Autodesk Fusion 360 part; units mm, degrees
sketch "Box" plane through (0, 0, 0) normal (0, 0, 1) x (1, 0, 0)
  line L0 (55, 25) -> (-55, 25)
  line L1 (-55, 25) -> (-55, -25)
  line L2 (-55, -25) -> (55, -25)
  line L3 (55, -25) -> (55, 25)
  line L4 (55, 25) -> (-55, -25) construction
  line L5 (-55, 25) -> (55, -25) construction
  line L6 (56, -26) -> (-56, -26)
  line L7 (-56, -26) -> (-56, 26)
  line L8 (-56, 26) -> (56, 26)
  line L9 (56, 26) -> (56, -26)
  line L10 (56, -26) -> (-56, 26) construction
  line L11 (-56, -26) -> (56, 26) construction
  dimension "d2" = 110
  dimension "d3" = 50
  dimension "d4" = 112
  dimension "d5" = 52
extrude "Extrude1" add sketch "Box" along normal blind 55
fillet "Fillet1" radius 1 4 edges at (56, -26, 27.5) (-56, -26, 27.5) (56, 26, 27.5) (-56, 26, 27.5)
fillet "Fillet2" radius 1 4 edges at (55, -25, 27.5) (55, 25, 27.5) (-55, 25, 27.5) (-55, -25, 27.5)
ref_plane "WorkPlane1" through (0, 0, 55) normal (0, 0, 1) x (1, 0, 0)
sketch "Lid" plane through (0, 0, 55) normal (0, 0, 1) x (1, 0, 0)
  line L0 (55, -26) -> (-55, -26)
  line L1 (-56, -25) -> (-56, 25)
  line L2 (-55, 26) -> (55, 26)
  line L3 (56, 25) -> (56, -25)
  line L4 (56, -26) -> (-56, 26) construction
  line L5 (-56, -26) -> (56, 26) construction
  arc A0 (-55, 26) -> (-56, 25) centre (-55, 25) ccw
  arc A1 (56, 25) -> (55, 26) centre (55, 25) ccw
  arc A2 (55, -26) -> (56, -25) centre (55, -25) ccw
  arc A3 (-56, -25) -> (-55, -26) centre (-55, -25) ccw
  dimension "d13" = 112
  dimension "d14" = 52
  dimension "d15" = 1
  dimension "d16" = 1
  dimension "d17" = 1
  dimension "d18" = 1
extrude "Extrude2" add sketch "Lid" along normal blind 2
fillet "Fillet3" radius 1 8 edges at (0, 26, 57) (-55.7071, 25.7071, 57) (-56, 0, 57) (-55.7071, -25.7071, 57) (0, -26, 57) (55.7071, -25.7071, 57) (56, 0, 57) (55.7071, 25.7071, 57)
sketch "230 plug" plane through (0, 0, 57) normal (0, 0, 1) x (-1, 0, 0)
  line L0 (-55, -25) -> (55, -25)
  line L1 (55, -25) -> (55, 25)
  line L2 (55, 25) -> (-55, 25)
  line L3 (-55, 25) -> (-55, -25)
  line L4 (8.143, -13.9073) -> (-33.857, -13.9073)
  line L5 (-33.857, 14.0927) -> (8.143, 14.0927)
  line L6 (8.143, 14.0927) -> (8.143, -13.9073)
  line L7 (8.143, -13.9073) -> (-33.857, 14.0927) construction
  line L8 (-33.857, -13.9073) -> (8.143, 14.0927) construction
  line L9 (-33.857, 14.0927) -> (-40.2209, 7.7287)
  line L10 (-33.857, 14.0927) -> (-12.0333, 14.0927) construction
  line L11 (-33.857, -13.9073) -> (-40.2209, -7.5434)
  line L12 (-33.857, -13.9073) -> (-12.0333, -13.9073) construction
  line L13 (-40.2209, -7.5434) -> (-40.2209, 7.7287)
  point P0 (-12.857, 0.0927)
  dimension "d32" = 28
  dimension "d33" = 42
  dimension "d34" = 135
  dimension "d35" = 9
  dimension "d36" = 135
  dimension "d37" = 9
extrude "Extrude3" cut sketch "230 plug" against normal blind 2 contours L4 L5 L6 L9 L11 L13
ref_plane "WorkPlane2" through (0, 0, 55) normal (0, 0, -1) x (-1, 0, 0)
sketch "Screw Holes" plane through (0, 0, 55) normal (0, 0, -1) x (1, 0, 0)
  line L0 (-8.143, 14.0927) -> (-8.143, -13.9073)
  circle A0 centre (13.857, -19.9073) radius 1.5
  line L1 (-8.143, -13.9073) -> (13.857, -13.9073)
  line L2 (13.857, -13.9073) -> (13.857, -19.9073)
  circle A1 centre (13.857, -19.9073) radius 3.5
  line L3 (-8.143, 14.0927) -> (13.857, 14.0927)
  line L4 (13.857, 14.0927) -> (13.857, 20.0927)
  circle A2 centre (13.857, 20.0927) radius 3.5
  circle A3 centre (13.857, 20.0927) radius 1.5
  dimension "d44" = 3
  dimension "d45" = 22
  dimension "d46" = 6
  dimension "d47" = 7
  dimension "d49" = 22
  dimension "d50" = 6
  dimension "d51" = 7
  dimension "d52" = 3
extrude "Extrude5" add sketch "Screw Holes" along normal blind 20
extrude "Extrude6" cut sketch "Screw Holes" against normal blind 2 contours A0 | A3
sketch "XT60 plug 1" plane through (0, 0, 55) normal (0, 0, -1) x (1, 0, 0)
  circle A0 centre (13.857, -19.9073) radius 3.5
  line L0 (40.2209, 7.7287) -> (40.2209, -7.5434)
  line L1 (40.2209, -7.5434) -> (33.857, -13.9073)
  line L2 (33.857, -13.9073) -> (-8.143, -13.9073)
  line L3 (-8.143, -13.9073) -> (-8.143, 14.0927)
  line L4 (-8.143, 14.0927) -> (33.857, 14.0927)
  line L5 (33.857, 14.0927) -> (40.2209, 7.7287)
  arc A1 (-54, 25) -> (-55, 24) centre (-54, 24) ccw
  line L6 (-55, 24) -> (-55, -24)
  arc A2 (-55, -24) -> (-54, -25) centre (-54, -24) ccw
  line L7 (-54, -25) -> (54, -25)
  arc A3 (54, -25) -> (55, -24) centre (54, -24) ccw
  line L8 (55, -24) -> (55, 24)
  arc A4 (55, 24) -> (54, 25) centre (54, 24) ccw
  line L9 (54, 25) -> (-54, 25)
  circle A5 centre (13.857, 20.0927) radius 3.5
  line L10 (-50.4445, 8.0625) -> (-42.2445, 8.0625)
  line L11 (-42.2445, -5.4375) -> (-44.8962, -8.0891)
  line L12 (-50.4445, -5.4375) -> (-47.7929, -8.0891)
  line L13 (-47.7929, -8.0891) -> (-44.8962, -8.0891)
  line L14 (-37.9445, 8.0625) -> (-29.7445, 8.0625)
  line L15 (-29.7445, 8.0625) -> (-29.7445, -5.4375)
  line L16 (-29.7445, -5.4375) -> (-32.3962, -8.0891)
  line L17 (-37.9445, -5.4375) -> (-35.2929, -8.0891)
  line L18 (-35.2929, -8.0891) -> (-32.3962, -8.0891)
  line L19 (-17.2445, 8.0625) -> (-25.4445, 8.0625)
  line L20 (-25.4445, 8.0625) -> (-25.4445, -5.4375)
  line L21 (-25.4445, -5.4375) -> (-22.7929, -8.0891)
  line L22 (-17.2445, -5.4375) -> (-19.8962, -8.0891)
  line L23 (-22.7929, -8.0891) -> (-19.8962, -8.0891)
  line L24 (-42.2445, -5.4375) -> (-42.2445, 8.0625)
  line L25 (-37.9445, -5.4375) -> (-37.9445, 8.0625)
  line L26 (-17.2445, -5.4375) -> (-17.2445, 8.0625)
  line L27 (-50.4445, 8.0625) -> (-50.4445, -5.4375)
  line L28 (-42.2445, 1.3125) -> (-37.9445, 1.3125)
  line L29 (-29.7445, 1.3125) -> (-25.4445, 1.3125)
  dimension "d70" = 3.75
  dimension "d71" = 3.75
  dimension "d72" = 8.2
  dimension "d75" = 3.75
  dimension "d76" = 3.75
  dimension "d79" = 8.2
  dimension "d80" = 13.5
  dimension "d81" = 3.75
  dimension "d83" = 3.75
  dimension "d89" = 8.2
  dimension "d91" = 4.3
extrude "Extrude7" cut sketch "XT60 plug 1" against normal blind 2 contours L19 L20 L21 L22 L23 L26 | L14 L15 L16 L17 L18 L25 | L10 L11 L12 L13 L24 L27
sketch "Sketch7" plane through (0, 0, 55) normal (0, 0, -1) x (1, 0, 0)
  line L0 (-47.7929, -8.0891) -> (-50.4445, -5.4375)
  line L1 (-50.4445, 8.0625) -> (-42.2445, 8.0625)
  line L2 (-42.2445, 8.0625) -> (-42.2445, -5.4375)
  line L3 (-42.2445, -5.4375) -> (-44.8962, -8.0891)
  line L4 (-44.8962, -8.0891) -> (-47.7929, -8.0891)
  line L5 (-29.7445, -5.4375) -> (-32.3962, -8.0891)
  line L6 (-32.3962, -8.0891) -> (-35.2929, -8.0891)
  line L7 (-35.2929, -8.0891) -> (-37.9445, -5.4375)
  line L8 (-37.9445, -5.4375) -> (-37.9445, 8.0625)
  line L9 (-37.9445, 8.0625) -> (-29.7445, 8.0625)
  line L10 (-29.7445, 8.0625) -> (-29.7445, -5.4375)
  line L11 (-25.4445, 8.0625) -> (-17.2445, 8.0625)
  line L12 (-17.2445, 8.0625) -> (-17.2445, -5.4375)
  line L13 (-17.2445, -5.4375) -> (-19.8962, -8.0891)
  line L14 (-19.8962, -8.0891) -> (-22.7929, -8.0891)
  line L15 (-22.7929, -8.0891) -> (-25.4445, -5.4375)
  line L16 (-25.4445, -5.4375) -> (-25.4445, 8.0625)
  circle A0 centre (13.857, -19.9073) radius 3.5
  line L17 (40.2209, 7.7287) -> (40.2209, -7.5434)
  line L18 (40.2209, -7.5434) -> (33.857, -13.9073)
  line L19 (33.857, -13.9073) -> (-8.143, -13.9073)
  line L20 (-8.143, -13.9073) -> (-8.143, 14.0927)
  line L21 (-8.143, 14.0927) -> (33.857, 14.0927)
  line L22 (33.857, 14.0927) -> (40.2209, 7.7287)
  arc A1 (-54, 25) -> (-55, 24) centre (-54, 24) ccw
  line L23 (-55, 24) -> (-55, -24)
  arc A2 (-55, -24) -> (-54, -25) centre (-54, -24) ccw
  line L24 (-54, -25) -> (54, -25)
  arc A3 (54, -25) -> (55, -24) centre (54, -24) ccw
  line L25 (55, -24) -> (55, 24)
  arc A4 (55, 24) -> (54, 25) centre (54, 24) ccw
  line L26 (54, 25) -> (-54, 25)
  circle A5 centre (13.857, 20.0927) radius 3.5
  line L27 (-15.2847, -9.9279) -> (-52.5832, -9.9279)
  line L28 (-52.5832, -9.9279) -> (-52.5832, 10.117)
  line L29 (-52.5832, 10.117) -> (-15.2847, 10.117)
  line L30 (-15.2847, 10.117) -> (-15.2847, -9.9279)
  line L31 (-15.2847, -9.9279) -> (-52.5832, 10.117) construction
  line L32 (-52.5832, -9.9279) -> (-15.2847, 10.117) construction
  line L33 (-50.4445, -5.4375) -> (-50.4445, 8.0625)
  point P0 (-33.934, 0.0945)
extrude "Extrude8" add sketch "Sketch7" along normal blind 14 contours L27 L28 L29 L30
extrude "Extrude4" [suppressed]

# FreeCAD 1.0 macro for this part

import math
import FreeCAD as App
import Part
import Sketcher
from FreeCAD import Vector


def edges_at(feature, points):
    """Names of the edges that pass closest to the given points."""
    edges = feature.Shape.Edges
    near = lambda p: min(range(len(edges)), key=lambda i: edges[i].distToShape(Part.Vertex(*p))[0])
    return sorted({f"Edge{near(p) + 1}" for p in points})

doc = App.newDocument("Part")
body = doc.addObject("PartDesign::Body", "Body")

# Sketch on XY plane
sketch1 = doc.addObject("Sketcher::SketchObject", "Sketch")
body.addObject(sketch1)
sketch1.AttachmentSupport = (doc.XY_Plane, [""])
sketch1.MapMode = "FlatFace"
sketch1.addGeometry([
    Part.LineSegment(Vector(-56, -26, 0), Vector(56, -26, 0)),  # 0
    Part.LineSegment(Vector(56, -26, 0), Vector(56, 26, 0)),  # 1
    Part.LineSegment(Vector(56, 26, 0), Vector(-56, 26, 0)),  # 2
    Part.LineSegment(Vector(-56, 26, 0), Vector(-56, -26, 0)),  # 3
    Part.LineSegment(Vector(-55, 25, 0), Vector(55, 25, 0)),  # 4
    Part.LineSegment(Vector(55, 25, 0), Vector(55, -25, 0)),  # 5
    Part.LineSegment(Vector(55, -25, 0), Vector(-55, -25, 0)),  # 6
    Part.LineSegment(Vector(-55, -25, 0), Vector(-55, 25, 0)),  # 7
], False)
sketch1.addConstraint([
    Sketcher.Constraint("Coincident", 0, 2, 1, 1),
    Sketcher.Constraint("Coincident", 1, 2, 2, 1),
    Sketcher.Constraint("Coincident", 2, 2, 3, 1),
    Sketcher.Constraint("Coincident", 3, 2, 0, 1),
    Sketcher.Constraint("Coincident", 4, 2, 5, 1),
    Sketcher.Constraint("Coincident", 5, 2, 6, 1),
    Sketcher.Constraint("Coincident", 6, 2, 7, 1),
    Sketcher.Constraint("Coincident", 7, 2, 4, 1),
    Sketcher.Constraint("Horizontal", 0),
    Sketcher.Constraint("Vertical", 1),
    Sketcher.Constraint("Horizontal", 2),
    Sketcher.Constraint("Vertical", 3),
    Sketcher.Constraint("Horizontal", 4),
    Sketcher.Constraint("Vertical", 5),
    Sketcher.Constraint("Horizontal", 6),
    Sketcher.Constraint("Vertical", 7),
    Sketcher.Constraint("Symmetric", 0, 2, 2, 2, -1, 1),
    Sketcher.Constraint("Symmetric", 4, 2, 6, 2, -1, 1),
    Sketcher.Constraint("DistanceX", 0, 1, 0, 2, 112.0),
    Sketcher.Constraint("DistanceX", 4, 1, 4, 2, 110.0),
    Sketcher.Constraint("DistanceY", 1, 1, 1, 2, 52.0),
    Sketcher.Constraint("DistanceY", 5, 2, 5, 1, 50.0),
])
pad1 = doc.addObject("PartDesign::Pad", "Pad")
body.addObject(pad1)
pad1.Profile = sketch1
pad1.Length = 55
doc.recompute()

fillet = doc.addObject("PartDesign::Fillet", "Fillet")
body.addObject(fillet)
fillet.Base = (pad1, edges_at(pad1, [
    (56, -26, 27.5),
    (-56, -26, 27.5),
    (56, 26, 27.5),
    (-56, 26, 27.5),
]))
fillet.Radius = 1
doc.recompute()

fillet2 = doc.addObject("PartDesign::Fillet", "Fillet001")
body.addObject(fillet2)
fillet2.Base = (fillet, edges_at(fillet, [
    (55, -25, 27.5),
    (55, 25, 27.5),
    (-55, 25, 27.5),
    (-55, -25, 27.5),
]))
fillet2.Radius = 1

# Sketch on XY plane
sketch2 = doc.addObject("Sketcher::SketchObject", "Sketch001")
body.addObject(sketch2)
sketch2.AttachmentSupport = (doc.XY_Plane, [""])
sketch2.MapMode = "FlatFace"
sketch2.AttachmentOffset = App.Placement(Vector(0, 0, 55), App.Rotation())
sketch2.addGeometry([
    Part.LineSegment(Vector(-55, -26, 0), Vector(55, -26, 0)),  # 0
    Part.ArcOfCircle(Part.Circle(Vector(55, -25, 0), Vector(0, 0, 1), 1), math.radians(-90), math.radians(0)),  # 1
    Part.LineSegment(Vector(56, -25, 0), Vector(56, 25, 0)),  # 2
    Part.ArcOfCircle(Part.Circle(Vector(55, 25, 0), Vector(0, 0, 1), 1), math.radians(0), math.radians(90)),  # 3
    Part.LineSegment(Vector(55, 26, 0), Vector(-55, 26, 0)),  # 4
    Part.ArcOfCircle(Part.Circle(Vector(-55, 25, 0), Vector(0, 0, 1), 1), math.radians(90), math.radians(180)),  # 5
    Part.LineSegment(Vector(-56, 25, 0), Vector(-56, -25, 0)),  # 6
    Part.ArcOfCircle(Part.Circle(Vector(-55, -25, 0), Vector(0, 0, 1), 1), math.radians(180), math.radians(270)),  # 7
], False)
sketch2.addConstraint([
    Sketcher.Constraint("Tangent", 0, 2, 1, 1),
    Sketcher.Constraint("Tangent", 1, 2, 2, 1),
    Sketcher.Constraint("Tangent", 2, 2, 3, 1),
    Sketcher.Constraint("Tangent", 3, 2, 4, 1),
    Sketcher.Constraint("Tangent", 4, 2, 5, 1),
    Sketcher.Constraint("Tangent", 5, 2, 6, 1),
    Sketcher.Constraint("Tangent", 6, 2, 7, 1),
    Sketcher.Constraint("Tangent", 7, 2, 0, 1),
    Sketcher.Constraint("Horizontal", 0),
    Sketcher.Constraint("Vertical", 2),
    Sketcher.Constraint("Horizontal", 4),
    Sketcher.Constraint("Vertical", 6),
    Sketcher.Constraint("Equal", 1, 3),
    Sketcher.Constraint("Equal", 3, 5),
    Sketcher.Constraint("Equal", 5, 7),
    Sketcher.Constraint("Symmetric", 1, 3, 5, 3, -1, 1),
    Sketcher.Constraint("Radius", 1, 1.0),
    Sketcher.Constraint("DistanceY", 0, 2, 3, 2, 52.0),
    Sketcher.Constraint("DistanceX", 0, 1, 0, 2, 110.0),
])
pad2 = doc.addObject("PartDesign::Pad", "Pad001")
body.addObject(pad2)
pad2.Profile = sketch2
pad2.Length = 2
doc.recompute()

fillet3 = doc.addObject("PartDesign::Fillet", "Fillet002")
body.addObject(fillet3)
fillet3.Base = (pad2, edges_at(pad2, [
    (0, 26, 57),
    (-55.707, 25.707, 57),
    (-56, 0, 57),
    (-55.707, -25.707, 57),
    (0, -26, 57),
    (55.707, -25.707, 57),
    (56, 0, 57),
    (55.707, 25.707, 57),
]))
fillet3.Radius = 1

# Sketch on XY plane
sketch3 = doc.addObject("Sketcher::SketchObject", "Sketch002")
body.addObject(sketch3)
sketch3.AttachmentSupport = (doc.XY_Plane, [""])
sketch3.MapMode = "FlatFace"
sketch3.AttachmentOffset = App.Placement(Vector(0, 0, 57), App.Rotation())
sketch3.addGeometry([
    Part.LineSegment(Vector(33.857, 13.9073, 0), Vector(-8.143, 13.9073, 0)),  # 0
    Part.LineSegment(Vector(-8.143, 13.9073, 0), Vector(-8.143, -14.0927, 0)),  # 1
    Part.LineSegment(Vector(-8.143, -14.0927, 0), Vector(33.857, -14.0927, 0)),  # 2
    Part.LineSegment(Vector(33.857, -14.0927, 0), Vector(40.2209, -7.7287, 0)),  # 3
    Part.LineSegment(Vector(40.2209, -7.7287, 0), Vector(40.2209, 7.5434, 0)),  # 4
    Part.LineSegment(Vector(40.2209, 7.5434, 0), Vector(33.857, 13.9073, 0)),  # 5
], False)
sketch3.addConstraint([
    Sketcher.Constraint("Coincident", 0, 2, 1, 1),
    Sketcher.Constraint("Coincident", 1, 2, 2, 1),
    Sketcher.Constraint("Coincident", 2, 2, 3, 1),
    Sketcher.Constraint("Coincident", 3, 2, 4, 1),
    Sketcher.Constraint("Coincident", 4, 2, 5, 1),
    Sketcher.Constraint("Coincident", 5, 2, 0, 1),
    Sketcher.Constraint("Horizontal", 0),
    Sketcher.Constraint("Vertical", 1),
    Sketcher.Constraint("Horizontal", 2),
    Sketcher.Constraint("Vertical", 4),
    Sketcher.Constraint("Perpendicular", 3, 5),
    Sketcher.Constraint("Vertical", 2, 2, 5, 2),
    Sketcher.Constraint("Equal", 3, 5),
    Sketcher.Constraint("DistanceX", 0, 2, 0, 1, 42.0),
    Sketcher.Constraint("DistanceY", 1, 2, 1, 1, 28.0),
    Sketcher.Constraint("Distance", 3, 9.0),
    Sketcher.Constraint("DistanceX", 0, 2, -1, 1, 8.143),
    Sketcher.Constraint("DistanceY", -1, 1, 0, 2, 13.9073),
])
pocket1 = doc.addObject("PartDesign::Pocket", "Pocket")
body.addObject(pocket1)
pocket1.Profile = sketch3
pocket1.Length = 2

# Sketch on XY plane
sketch4 = doc.addObject("Sketcher::SketchObject", "Sketch003")
body.addObject(sketch4)
sketch4.AttachmentSupport = (doc.XY_Plane, [""])
sketch4.MapMode = "FlatFace"
sketch4.AttachmentOffset = App.Placement(Vector(0, 0, 55), App.Rotation())
sketch4.addGeometry([
    Part.Circle(Vector(13.857, 19.9073, 0), Vector(0, 0, 1), 3.5),
    Part.Circle(Vector(13.857, 19.9073, 0), Vector(0, 0, 1), 1.5),
    Part.Circle(Vector(13.857, -20.0927, 0), Vector(0, 0, 1), 3.5),
    Part.Circle(Vector(13.857, -20.0927, 0), Vector(0, 0, 1), 1.5),
], False)
sketch4.addConstraint([
    Sketcher.Constraint("Coincident", 1, 3, 0, 3),
    Sketcher.Constraint("Coincident", 3, 3, 2, 3),
    Sketcher.Constraint("Equal", 0, 2),
    Sketcher.Constraint("Equal", 1, 3),
    Sketcher.Constraint("Vertical", 1, 3, 2, 3),
    Sketcher.Constraint("Diameter", 0, 7.0),
    Sketcher.Constraint("Diameter", 1, 3.0),
    Sketcher.Constraint("DistanceY", 2, 3, 0, 3, 40.0),
    Sketcher.Constraint("DistanceX", -1, 1, 0, 3, 13.857),
    Sketcher.Constraint("DistanceY", -1, 1, 0, 3, 19.9073),
])
pad3 = doc.addObject("PartDesign::Pad", "Pad002")
body.addObject(pad3)
pad3.Profile = sketch4
pad3.Length = 20
pad3.Reversed = True

# Sketch on XY plane
sketch5 = doc.addObject("Sketcher::SketchObject", "Sketch004")
body.addObject(sketch5)
sketch5.AttachmentSupport = (doc.XY_Plane, [""])
sketch5.MapMode = "FlatFace"
sketch5.AttachmentOffset = App.Placement(Vector(0, 0, 55), App.Rotation())
sketch5.addGeometry([
    Part.Circle(Vector(13.857, 19.9073, 0), Vector(0, 0, 1), 1.5),
    Part.Circle(Vector(13.857, -20.0927, 0), Vector(0, 0, 1), 1.5),
], False)
sketch5.addConstraint([
    Sketcher.Constraint("Equal", 0, 1),
    Sketcher.Constraint("Vertical", 0, 3, 1, 3),
    Sketcher.Constraint("Diameter", 0, 3.0),
    Sketcher.Constraint("DistanceY", 1, 3, 0, 3, 40.0),
    Sketcher.Constraint("DistanceX", -1, 1, 0, 3, 13.857),
    Sketcher.Constraint("DistanceY", -1, 1, 0, 3, 19.9073),
])
pocket2 = doc.addObject("PartDesign::Pocket", "Pocket001")
body.addObject(pocket2)
pocket2.Profile = sketch5
pocket2.Length = 2
pocket2.Reversed = True

# Sketch on XY plane
sketch6 = doc.addObject("Sketcher::SketchObject", "Sketch005")
body.addObject(sketch6)
sketch6.AttachmentSupport = (doc.XY_Plane, [""])
sketch6.MapMode = "FlatFace"
sketch6.AttachmentOffset = App.Placement(Vector(0, 0, 55), App.Rotation())
sketch6.addGeometry([
    Part.LineSegment(Vector(-25.4445, -8.0625, 0), Vector(-25.4445, 5.4375, 0)),  # 0
    Part.LineSegment(Vector(-25.4445, 5.4375, 0), Vector(-22.7929, 8.0891, 0)),  # 1
    Part.LineSegment(Vector(-22.7929, 8.0891, 0), Vector(-19.8962, 8.0891, 0)),  # 2
    Part.LineSegment(Vector(-19.8962, 8.0891, 0), Vector(-17.2445, 5.4375, 0)),  # 3
    Part.LineSegment(Vector(-17.2445, 5.4375, 0), Vector(-17.2445, -8.0625, 0)),  # 4
    Part.LineSegment(Vector(-17.2445, -8.0625, 0), Vector(-25.4445, -8.0625, 0)),  # 5
    Part.LineSegment(Vector(-37.9445, -8.0625, 0), Vector(-37.9445, 5.4375, 0)),  # 6
    Part.LineSegment(Vector(-37.9445, 5.4375, 0), Vector(-35.2929, 8.0891, 0)),  # 7
    Part.LineSegment(Vector(-35.2929, 8.0891, 0), Vector(-32.3962, 8.0891, 0)),  # 8
    Part.LineSegment(Vector(-32.3962, 8.0891, 0), Vector(-29.7445, 5.4375, 0)),  # 9
    Part.LineSegment(Vector(-29.7445, 5.4375, 0), Vector(-29.7445, -8.0625, 0)),  # 10
    Part.LineSegment(Vector(-29.7445, -8.0625, 0), Vector(-37.9445, -8.0625, 0)),  # 11
    Part.LineSegment(Vector(-42.2445, -8.0625, 0), Vector(-50.4445, -8.0625, 0)),  # 12
    Part.LineSegment(Vector(-50.4445, -8.0625, 0), Vector(-50.4445, 5.4375, 0)),  # 13
    Part.LineSegment(Vector(-50.4445, 5.4375, 0), Vector(-47.7929, 8.0891, 0)),  # 14
    Part.LineSegment(Vector(-47.7929, 8.0891, 0), Vector(-44.8962, 8.0891, 0)),  # 15
    Part.LineSegment(Vector(-44.8962, 8.0891, 0), Vector(-42.2445, 5.4375, 0)),  # 16
    Part.LineSegment(Vector(-42.2445, 5.4375, 0), Vector(-42.2445, -8.0625, 0)),  # 17
], False)
sketch6.addConstraint([
    Sketcher.Constraint("Coincident", 0, 2, 1, 1),
    Sketcher.Constraint("Coincident", 1, 2, 2, 1),
    Sketcher.Constraint("Coincident", 2, 2, 3, 1),
    Sketcher.Constraint("Coincident", 3, 2, 4, 1),
    Sketcher.Constraint("Coincident", 4, 2, 5, 1),
    Sketcher.Constraint("Coincident", 5, 2, 0, 1),
    Sketcher.Constraint("Coincident", 6, 2, 7, 1),
    Sketcher.Constraint("Coincident", 7, 2, 8, 1),
    Sketcher.Constraint("Coincident", 8, 2, 9, 1),
    Sketcher.Constraint("Coincident", 9, 2, 10, 1),
    Sketcher.Constraint("Coincident", 10, 2, 11, 1),
    Sketcher.Constraint("Coincident", 11, 2, 6, 1),
    Sketcher.Constraint("Coincident", 12, 2, 13, 1),
    Sketcher.Constraint("Coincident", 13, 2, 14, 1),
    Sketcher.Constraint("Coincident", 14, 2, 15, 1),
    Sketcher.Constraint("Coincident", 15, 2, 16, 1),
    Sketcher.Constraint("Coincident", 16, 2, 17, 1),
    Sketcher.Constraint("Coincident", 17, 2, 12, 1),
    Sketcher.Constraint("Vertical", 0),
    Sketcher.Constraint("Horizontal", 2),
    Sketcher.Constraint("Vertical", 4),
    Sketcher.Constraint("Horizontal", 5),
    Sketcher.Constraint("Vertical", 6),
    Sketcher.Constraint("Horizontal", 8),
    Sketcher.Constraint("Vertical", 10),
    Sketcher.Constraint("Horizontal", 11),
    Sketcher.Constraint("Horizontal", 12),
    Sketcher.Constraint("Vertical", 13),
    Sketcher.Constraint("Horizontal", 15),
    Sketcher.Constraint("Vertical", 17),
    Sketcher.Constraint("Perpendicular", 1, 3),
    Sketcher.Constraint("Perpendicular", 3, 7),
    Sketcher.Constraint("Perpendicular", 7, 9),
    Sketcher.Constraint("Perpendicular", 9, 14),
    Sketcher.Constraint("Perpendicular", 14, 16),
    Sketcher.Constraint("Horizontal", 0, 2, 3, 2),
    Sketcher.Constraint("Horizontal", 3, 2, 6, 2),
    Sketcher.Constraint("Horizontal", 2, 2, 7, 2),
    Sketcher.Constraint("Horizontal", 6, 2, 9, 2),
    Sketcher.Constraint("Horizontal", 5, 2, 10, 2),
    Sketcher.Constraint("Horizontal", 11, 2, 12, 2),
    Sketcher.Constraint("Horizontal", 9, 2, 13, 2),
    Sketcher.Constraint("Horizontal", 8, 2, 14, 2),
    Sketcher.Constraint("Horizontal", 13, 2, 16, 2),
    Sketcher.Constraint("Equal", 2, 8),
    Sketcher.Constraint("Equal", 11, 12),
    Sketcher.Constraint("Equal", 1, 3),
    Sketcher.Constraint("DistanceX", 5, 2, 5, 1, 8.2),
    Sketcher.Constraint("DistanceY", 0, 1, 0, 2, 13.5),
    Sketcher.Constraint("DistanceX", 9, 2, 0, 2, 4.3),
    Sketcher.Constraint("DistanceX", 16, 2, 6, 2, 4.3),
    Sketcher.Constraint("Distance", 1, 3.75),
    Sketcher.Constraint("DistanceX", 1, 2, -1, 1, 22.793),
    Sketcher.Constraint("DistanceY", -1, 1, 1, 2, 8.089),
])
pocket3 = doc.addObject("PartDesign::Pocket", "Pocket002")
body.addObject(pocket3)
pocket3.Profile = sketch6
pocket3.Length = 2
pocket3.Reversed = True

# Sketch on XY plane
sketch7 = doc.addObject("Sketcher::SketchObject", "Sketch006")
body.addObject(sketch7)
sketch7.AttachmentSupport = (doc.XY_Plane, [""])
sketch7.MapMode = "FlatFace"
sketch7.AttachmentOffset = App.Placement(Vector(0, 0, 55), App.Rotation())
sketch7.addGeometry([
    Part.LineSegment(Vector(-52.5832, 9.9279, 0), Vector(-15.2847, 9.9279, 0)),  # 0
    Part.LineSegment(Vector(-15.2847, 9.9279, 0), Vector(-15.2847, -10.117, 0)),  # 1
    Part.LineSegment(Vector(-15.2847, -10.117, 0), Vector(-52.5832, -10.117, 0)),  # 2
    Part.LineSegment(Vector(-52.5832, -10.117, 0), Vector(-52.5832, 9.9279, 0)),  # 3
    Part.LineSegment(Vector(-44.8962, 8.0891, 0), Vector(-47.7929, 8.0891, 0)),  # 4
    Part.LineSegment(Vector(-47.7929, 8.0891, 0), Vector(-50.4445, 5.4375, 0)),  # 5
    Part.LineSegment(Vector(-50.4445, 5.4375, 0), Vector(-50.4445, -8.0625, 0)),  # 6
    Part.LineSegment(Vector(-50.4445, -8.0625, 0), Vector(-42.2445, -8.0625, 0)),  # 7
    Part.LineSegment(Vector(-42.2445, -8.0625, 0), Vector(-42.2445, 5.4375, 0)),  # 8
    Part.LineSegment(Vector(-42.2445, 5.4375, 0), Vector(-44.8962, 8.0891, 0)),  # 9
    Part.LineSegment(Vector(-29.7445, -8.0625, 0), Vector(-29.7445, 5.4375, 0)),  # 10
    Part.LineSegment(Vector(-29.7445, 5.4375, 0), Vector(-32.3962, 8.0891, 0)),  # 11
    Part.LineSegment(Vector(-32.3962, 8.0891, 0), Vector(-35.2929, 8.0891, 0)),  # 12
    Part.LineSegment(Vector(-35.2929, 8.0891, 0), Vector(-37.9445, 5.4375, 0)),  # 13
    Part.LineSegment(Vector(-37.9445, 5.4375, 0), Vector(-37.9445, -8.0625, 0)),  # 14
    Part.LineSegment(Vector(-37.9445, -8.0625, 0), Vector(-29.7445, -8.0625, 0)),  # 15
    Part.LineSegment(Vector(-25.4445, 5.4375, 0), Vector(-25.4445, -8.0625, 0)),  # 16
    Part.LineSegment(Vector(-25.4445, -8.0625, 0), Vector(-17.2445, -8.0625, 0)),  # 17
    Part.LineSegment(Vector(-17.2445, -8.0625, 0), Vector(-17.2445, 5.4375, 0)),  # 18
    Part.LineSegment(Vector(-17.2445, 5.4375, 0), Vector(-19.8962, 8.0891, 0)),  # 19
    Part.LineSegment(Vector(-19.8962, 8.0891, 0), Vector(-22.7929, 8.0891, 0)),  # 20
    Part.LineSegment(Vector(-22.7929, 8.0891, 0), Vector(-25.4445, 5.4375, 0)),  # 21
], False)
sketch7.addConstraint([
    Sketcher.Constraint("Coincident", 0, 2, 1, 1),
    Sketcher.Constraint("Coincident", 1, 2, 2, 1),
    Sketcher.Constraint("Coincident", 2, 2, 3, 1),
    Sketcher.Constraint("Coincident", 3, 2, 0, 1),
    Sketcher.Constraint("Coincident", 4, 2, 5, 1),
    Sketcher.Constraint("Coincident", 5, 2, 6, 1),
    Sketcher.Constraint("Coincident", 6, 2, 7, 1),
    Sketcher.Constraint("Coincident", 7, 2, 8, 1),
    Sketcher.Constraint("Coincident", 8, 2, 9, 1),
    Sketcher.Constraint("Coincident", 9, 2, 4, 1),
    Sketcher.Constraint("Coincident", 10, 2, 11, 1),
    Sketcher.Constraint("Coincident", 11, 2, 12, 1),
    Sketcher.Constraint("Coincident", 12, 2, 13, 1),
    Sketcher.Constraint("Coincident", 13, 2, 14, 1),
    Sketcher.Constraint("Coincident", 14, 2, 15, 1),
    Sketcher.Constraint("Coincident", 15, 2, 10, 1),
    Sketcher.Constraint("Coincident", 16, 2, 17, 1),
    Sketcher.Constraint("Coincident", 17, 2, 18, 1),
    Sketcher.Constraint("Coincident", 18, 2, 19, 1),
    Sketcher.Constraint("Coincident", 19, 2, 20, 1),
    Sketcher.Constraint("Coincident", 20, 2, 21, 1),
    Sketcher.Constraint("Coincident", 21, 2, 16, 1),
    Sketcher.Constraint("Horizontal", 0),
    Sketcher.Constraint("Vertical", 1),
    Sketcher.Constraint("Horizontal", 2),
    Sketcher.Constraint("Vertical", 3),
    Sketcher.Constraint("Horizontal", 4),
    Sketcher.Constraint("Vertical", 6),
    Sketcher.Constraint("Horizontal", 7),
    Sketcher.Constraint("Vertical", 8),
    Sketcher.Constraint("Vertical", 10),
    Sketcher.Constraint("Horizontal", 12),
    Sketcher.Constraint("Vertical", 14),
    Sketcher.Constraint("Horizontal", 15),
    Sketcher.Constraint("Vertical", 16),
    Sketcher.Constraint("Horizontal", 17),
    Sketcher.Constraint("Vertical", 18),
    Sketcher.Constraint("Horizontal", 20),
    Sketcher.Constraint("Perpendicular", 5, 9),
    Sketcher.Constraint("Parallel", 9, 11),
    Sketcher.Constraint("Perpendicular", 11, 13),
    Sketcher.Constraint("Perpendicular", 13, 19),
    Sketcher.Constraint("Perpendicular", 19, 21),
    Sketcher.Constraint("Horizontal", 5, 2, 8, 2),
    Sketcher.Constraint("Horizontal", 8, 2, 10, 2),
    Sketcher.Constraint("Horizontal", 9, 2, 11, 2),
    Sketcher.Constraint("Horizontal", 10, 2, 13, 2),
    Sketcher.Constraint("Horizontal", 7, 2, 14, 2),
    Sketcher.Constraint("Horizontal", 15, 2, 16, 2),
    Sketcher.Constraint("Horizontal", 13, 2, 18, 2),
    Sketcher.Constraint("Horizontal", 12, 2, 19, 2),
    Sketcher.Constraint("Horizontal", 18, 2, 21, 2),
    Sketcher.Constraint("Equal", 4, 12),
    Sketcher.Constraint("Equal", 15, 17),
    Sketcher.Constraint("Equal", 5, 9),
    Sketcher.Constraint("DistanceX", 7, 1, 7, 2, 8.2),
    Sketcher.Constraint("DistanceY", 6, 2, 6, 1, 13.5),
    Sketcher.Constraint("DistanceX", 8, 2, 10, 2, 12.5),
    Sketcher.Constraint("DistanceX", 15, 2, 16, 2, 4.3),
    Sketcher.Constraint("Distance", 5, 3.75),
    Sketcher.Constraint("DistanceY", 1, 2, 1, 1, 20.045),
    Sketcher.Constraint("DistanceX", 0, 1, 0, 2, 37.2985),
    Sketcher.Constraint("DistanceY", -1, 1, 0, 2, 9.928),
    Sketcher.Constraint("DistanceX", 4, 2, -1, 1, 47.793),
    Sketcher.Constraint("DistanceY", -1, 1, 4, 2, 8.089),
    Sketcher.Constraint("DistanceX", 3, 2, 9, 2, 7.687),
])
pad4 = doc.addObject("PartDesign::Pad", "Pad003")
body.addObject(pad4)
pad4.Profile = sketch7
pad4.Length = 14
pad4.Reversed = True

doc.recompute()
